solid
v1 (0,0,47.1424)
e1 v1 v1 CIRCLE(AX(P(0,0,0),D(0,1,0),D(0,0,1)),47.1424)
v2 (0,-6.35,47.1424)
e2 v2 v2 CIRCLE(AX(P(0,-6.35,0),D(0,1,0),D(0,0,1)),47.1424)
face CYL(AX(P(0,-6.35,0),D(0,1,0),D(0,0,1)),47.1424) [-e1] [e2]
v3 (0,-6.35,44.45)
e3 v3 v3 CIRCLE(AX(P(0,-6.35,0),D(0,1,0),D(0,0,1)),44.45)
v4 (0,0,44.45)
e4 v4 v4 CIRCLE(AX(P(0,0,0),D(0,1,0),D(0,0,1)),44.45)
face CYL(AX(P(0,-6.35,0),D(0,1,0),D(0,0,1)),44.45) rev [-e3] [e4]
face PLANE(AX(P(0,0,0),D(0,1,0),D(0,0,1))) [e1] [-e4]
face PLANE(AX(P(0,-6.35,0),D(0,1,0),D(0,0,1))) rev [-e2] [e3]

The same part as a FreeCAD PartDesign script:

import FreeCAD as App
import Part
import Sketcher

V = App.Vector
Q = App.Units.Quantity

doc = App.newDocument("Part")
body = doc.addObject("PartDesign::Body", "Body")

# Sketch on XZ plane
sketch1 = doc.addObject("Sketcher::SketchObject", "Sketch")
body.addObject(sketch1)
sketch1.AttachmentSupport = (doc.XZ_Plane, [""])
sketch1.MapMode = "FlatFace"
sketch1.addGeometry([
    Part.Circle(V(0, 0, 0), V(0, 0, 1), 47),
    Part.Circle(V(0, 0, 0), V(0, 0, 1), 44),
], False)
sketch1.addConstraint([
    Sketcher.Constraint("Coincident", 0, 3, -1, 1),
    Sketcher.Constraint("Coincident", 1, 3, -1, 1),
    Sketcher.Constraint("Diameter", 1, Q("3.5 in")),
    Sketcher.Constraint("Diameter", 0, Q("3.712 in")),
])
pad1 = doc.addObject("PartDesign::Pad", "Pad")
body.addObject(pad1)
pad1.Profile = sketch1
pad1.Length = Q("0.25 in")

doc.recompute()
